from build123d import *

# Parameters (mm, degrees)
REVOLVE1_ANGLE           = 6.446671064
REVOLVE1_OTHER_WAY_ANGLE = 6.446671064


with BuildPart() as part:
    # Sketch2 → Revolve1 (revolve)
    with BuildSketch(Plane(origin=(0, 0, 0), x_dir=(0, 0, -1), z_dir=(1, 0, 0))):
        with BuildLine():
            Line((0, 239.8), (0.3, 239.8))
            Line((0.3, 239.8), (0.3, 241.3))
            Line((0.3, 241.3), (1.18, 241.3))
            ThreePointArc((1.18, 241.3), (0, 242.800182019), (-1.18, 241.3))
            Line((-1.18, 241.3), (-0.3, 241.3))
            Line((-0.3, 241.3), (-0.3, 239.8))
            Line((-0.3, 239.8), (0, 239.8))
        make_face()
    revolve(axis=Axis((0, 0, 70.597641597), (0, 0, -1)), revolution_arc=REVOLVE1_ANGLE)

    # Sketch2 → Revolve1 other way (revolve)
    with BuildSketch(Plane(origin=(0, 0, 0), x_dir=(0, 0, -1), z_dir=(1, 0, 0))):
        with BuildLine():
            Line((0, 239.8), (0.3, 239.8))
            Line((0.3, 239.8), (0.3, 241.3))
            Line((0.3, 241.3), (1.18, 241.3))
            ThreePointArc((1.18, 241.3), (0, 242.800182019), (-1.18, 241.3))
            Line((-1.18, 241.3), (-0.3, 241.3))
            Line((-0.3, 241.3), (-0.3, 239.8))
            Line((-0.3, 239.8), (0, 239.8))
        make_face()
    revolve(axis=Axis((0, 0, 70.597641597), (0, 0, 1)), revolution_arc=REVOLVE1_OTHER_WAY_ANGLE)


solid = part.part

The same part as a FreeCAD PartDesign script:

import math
import FreeCAD as App
import Part
import Sketcher

doc = App.newDocument("Part")
body = doc.addObject("PartDesign::Body", "Body")

sketch1 = body.newObject("Sketcher::SketchObject", "Sketch")
sketch1.AttachmentSupport = (doc.getObject("YZ_Plane"), [""])
sketch1.MapMode = "FlatFace"
sketch1.addGeometry(Part.LineSegment(App.Vector(239.8, -0.3, 0), App.Vector(241.3, -0.3, 0)), False)
sketch1.addGeometry(Part.LineSegment(App.Vector(241.3, -0.3, 0), App.Vector(241.3, -1.18, 0)), False)
sketch1.addGeometry(Part.ArcOfCircle(Part.Circle(App.Vector(241.586014, 0, 0), App.Vector(0, 0, 1), 1.214168), math.radians(-103.624857), math.radians(103.624857)), False)
sketch1.addGeometry(Part.LineSegment(App.Vector(241.3, 1.18, 0), App.Vector(241.3, 0.3, 0)), False)
sketch1.addGeometry(Part.LineSegment(App.Vector(241.3, 0.3, 0), App.Vector(239.8, 0.3, 0)), False)
sketch1.addGeometry(Part.LineSegment(App.Vector(239.8, 0.3, 0), App.Vector(239.8, -0.3, 0)), False)
sketch1.addConstraint(Sketcher.Constraint("Coincident", 0, 2, 1, 1))
sketch1.addConstraint(Sketcher.Constraint("Coincident", 1, 2, 2, 1))
sketch1.addConstraint(Sketcher.Constraint("Coincident", 2, 2, 3, 1))
sketch1.addConstraint(Sketcher.Constraint("Coincident", 3, 2, 4, 1))
sketch1.addConstraint(Sketcher.Constraint("Coincident", 4, 2, 5, 1))
sketch1.addConstraint(Sketcher.Constraint("Coincident", 5, 2, 0, 1))
sketch1.addConstraint(Sketcher.Constraint("Horizontal", 0))
sketch1.addConstraint(Sketcher.Constraint("Vertical", 1))
sketch1.addConstraint(Sketcher.Constraint("Vertical", 3))
sketch1.addConstraint(Sketcher.Constraint("Horizontal", 4))
sketch1.addConstraint(Sketcher.Constraint("Vertical", 5))
sketch1.addConstraint(Sketcher.Constraint("Symmetric", 1, 2, 2, 2, -1))
sketch1.addConstraint(Sketcher.Constraint("Equal", 1, 3))
sketch1.addConstraint(Sketcher.Constraint("DistanceX", 0, 1, 0, 2, 1.5))
sketch1.addConstraint(Sketcher.Constraint("DistanceY", 5, 2, 5, 1, 0.6))
sketch1.addConstraint(Sketcher.Constraint("DistanceY", 1, 2, 1, 1, 0.88))
sketch1.addConstraint(Sketcher.Constraint("DistanceX", -1, 1, 0, 2, 241.3))
sketch1.addConstraint(Sketcher.Constraint("Radius", 2, 1.214168))
revolution = body.newObject("PartDesign::Revolution", "Revolution")
revolution.Profile = sketch1
revolution.ReferenceAxis = (sketch1, ["V_Axis"])
revolution.Angle = 6.446671
revolution.Reversed = True

sketch2 = body.newObject("Sketcher::SketchObject", "Sketch001")
sketch2.AttachmentSupport = (doc.getObject("YZ_Plane"), [""])
sketch2.MapMode = "FlatFace"
sketch2.addGeometry(Part.LineSegment(App.Vector(239.8, -0.3, 0), App.Vector(241.3, -0.3, 0)), False)
sketch2.addGeometry(Part.LineSegment(App.Vector(241.3, -0.3, 0), App.Vector(241.3, -1.18, 0)), False)
sketch2.addGeometry(Part.ArcOfCircle(Part.Circle(App.Vector(241.586014, 0, 0), App.Vector(0, 0, 1), 1.214168), math.radians(-103.624857), math.radians(103.624857)), False)
sketch2.addGeometry(Part.LineSegment(App.Vector(241.3, 1.18, 0), App.Vector(241.3, 0.3, 0)), False)
sketch2.addGeometry(Part.LineSegment(App.Vector(241.3, 0.3, 0), App.Vector(239.8, 0.3, 0)), False)
sketch2.addGeometry(Part.LineSegment(App.Vector(239.8, 0.3, 0), App.Vector(239.8, -0.3, 0)), False)
sketch2.addConstraint(Sketcher.Constraint("Coincident", 0, 2, 1, 1))
sketch2.addConstraint(Sketcher.Constraint("Coincident", 1, 2, 2, 1))
sketch2.addConstraint(Sketcher.Constraint("Coincident", 2, 2, 3, 1))
sketch2.addConstraint(Sketcher.Constraint("Coincident", 3, 2, 4, 1))
sketch2.addConstraint(Sketcher.Constraint("Coincident", 4, 2, 5, 1))
sketch2.addConstraint(Sketcher.Constraint("Coincident", 5, 2, 0, 1))
sketch2.addConstraint(Sketcher.Constraint("Horizontal", 0))
sketch2.addConstraint(Sketcher.Constraint("Vertical", 1))
sketch2.addConstraint(Sketcher.Constraint("Vertical", 3))
sketch2.addConstraint(Sketcher.Constraint("Horizontal", 4))
sketch2.addConstraint(Sketcher.Constraint("Vertical", 5))
sketch2.addConstraint(Sketcher.Constraint("Symmetric", 1, 2, 2, 2, -1))
sketch2.addConstraint(Sketcher.Constraint("Equal", 1, 3))
sketch2.addConstraint(Sketcher.Constraint("DistanceX", 0, 1, 0, 2, 1.5))
sketch2.addConstraint(Sketcher.Constraint("DistanceY", 5, 2, 5, 1, 0.6))
sketch2.addConstraint(Sketcher.Constraint("DistanceY", 1, 2, 1, 1, 0.88))
sketch2.addConstraint(Sketcher.Constraint("DistanceX", -1, 1, 0, 2, 241.3))
sketch2.addConstraint(Sketcher.Constraint("Radius", 2, 1.214168))
revolution2 = body.newObject("PartDesign::Revolution", "Revolution001")
revolution2.Profile = sketch2
revolution2.ReferenceAxis = (sketch2, ["V_Axis"])
revolution2.Angle = 6.446671

doc.recompute()
